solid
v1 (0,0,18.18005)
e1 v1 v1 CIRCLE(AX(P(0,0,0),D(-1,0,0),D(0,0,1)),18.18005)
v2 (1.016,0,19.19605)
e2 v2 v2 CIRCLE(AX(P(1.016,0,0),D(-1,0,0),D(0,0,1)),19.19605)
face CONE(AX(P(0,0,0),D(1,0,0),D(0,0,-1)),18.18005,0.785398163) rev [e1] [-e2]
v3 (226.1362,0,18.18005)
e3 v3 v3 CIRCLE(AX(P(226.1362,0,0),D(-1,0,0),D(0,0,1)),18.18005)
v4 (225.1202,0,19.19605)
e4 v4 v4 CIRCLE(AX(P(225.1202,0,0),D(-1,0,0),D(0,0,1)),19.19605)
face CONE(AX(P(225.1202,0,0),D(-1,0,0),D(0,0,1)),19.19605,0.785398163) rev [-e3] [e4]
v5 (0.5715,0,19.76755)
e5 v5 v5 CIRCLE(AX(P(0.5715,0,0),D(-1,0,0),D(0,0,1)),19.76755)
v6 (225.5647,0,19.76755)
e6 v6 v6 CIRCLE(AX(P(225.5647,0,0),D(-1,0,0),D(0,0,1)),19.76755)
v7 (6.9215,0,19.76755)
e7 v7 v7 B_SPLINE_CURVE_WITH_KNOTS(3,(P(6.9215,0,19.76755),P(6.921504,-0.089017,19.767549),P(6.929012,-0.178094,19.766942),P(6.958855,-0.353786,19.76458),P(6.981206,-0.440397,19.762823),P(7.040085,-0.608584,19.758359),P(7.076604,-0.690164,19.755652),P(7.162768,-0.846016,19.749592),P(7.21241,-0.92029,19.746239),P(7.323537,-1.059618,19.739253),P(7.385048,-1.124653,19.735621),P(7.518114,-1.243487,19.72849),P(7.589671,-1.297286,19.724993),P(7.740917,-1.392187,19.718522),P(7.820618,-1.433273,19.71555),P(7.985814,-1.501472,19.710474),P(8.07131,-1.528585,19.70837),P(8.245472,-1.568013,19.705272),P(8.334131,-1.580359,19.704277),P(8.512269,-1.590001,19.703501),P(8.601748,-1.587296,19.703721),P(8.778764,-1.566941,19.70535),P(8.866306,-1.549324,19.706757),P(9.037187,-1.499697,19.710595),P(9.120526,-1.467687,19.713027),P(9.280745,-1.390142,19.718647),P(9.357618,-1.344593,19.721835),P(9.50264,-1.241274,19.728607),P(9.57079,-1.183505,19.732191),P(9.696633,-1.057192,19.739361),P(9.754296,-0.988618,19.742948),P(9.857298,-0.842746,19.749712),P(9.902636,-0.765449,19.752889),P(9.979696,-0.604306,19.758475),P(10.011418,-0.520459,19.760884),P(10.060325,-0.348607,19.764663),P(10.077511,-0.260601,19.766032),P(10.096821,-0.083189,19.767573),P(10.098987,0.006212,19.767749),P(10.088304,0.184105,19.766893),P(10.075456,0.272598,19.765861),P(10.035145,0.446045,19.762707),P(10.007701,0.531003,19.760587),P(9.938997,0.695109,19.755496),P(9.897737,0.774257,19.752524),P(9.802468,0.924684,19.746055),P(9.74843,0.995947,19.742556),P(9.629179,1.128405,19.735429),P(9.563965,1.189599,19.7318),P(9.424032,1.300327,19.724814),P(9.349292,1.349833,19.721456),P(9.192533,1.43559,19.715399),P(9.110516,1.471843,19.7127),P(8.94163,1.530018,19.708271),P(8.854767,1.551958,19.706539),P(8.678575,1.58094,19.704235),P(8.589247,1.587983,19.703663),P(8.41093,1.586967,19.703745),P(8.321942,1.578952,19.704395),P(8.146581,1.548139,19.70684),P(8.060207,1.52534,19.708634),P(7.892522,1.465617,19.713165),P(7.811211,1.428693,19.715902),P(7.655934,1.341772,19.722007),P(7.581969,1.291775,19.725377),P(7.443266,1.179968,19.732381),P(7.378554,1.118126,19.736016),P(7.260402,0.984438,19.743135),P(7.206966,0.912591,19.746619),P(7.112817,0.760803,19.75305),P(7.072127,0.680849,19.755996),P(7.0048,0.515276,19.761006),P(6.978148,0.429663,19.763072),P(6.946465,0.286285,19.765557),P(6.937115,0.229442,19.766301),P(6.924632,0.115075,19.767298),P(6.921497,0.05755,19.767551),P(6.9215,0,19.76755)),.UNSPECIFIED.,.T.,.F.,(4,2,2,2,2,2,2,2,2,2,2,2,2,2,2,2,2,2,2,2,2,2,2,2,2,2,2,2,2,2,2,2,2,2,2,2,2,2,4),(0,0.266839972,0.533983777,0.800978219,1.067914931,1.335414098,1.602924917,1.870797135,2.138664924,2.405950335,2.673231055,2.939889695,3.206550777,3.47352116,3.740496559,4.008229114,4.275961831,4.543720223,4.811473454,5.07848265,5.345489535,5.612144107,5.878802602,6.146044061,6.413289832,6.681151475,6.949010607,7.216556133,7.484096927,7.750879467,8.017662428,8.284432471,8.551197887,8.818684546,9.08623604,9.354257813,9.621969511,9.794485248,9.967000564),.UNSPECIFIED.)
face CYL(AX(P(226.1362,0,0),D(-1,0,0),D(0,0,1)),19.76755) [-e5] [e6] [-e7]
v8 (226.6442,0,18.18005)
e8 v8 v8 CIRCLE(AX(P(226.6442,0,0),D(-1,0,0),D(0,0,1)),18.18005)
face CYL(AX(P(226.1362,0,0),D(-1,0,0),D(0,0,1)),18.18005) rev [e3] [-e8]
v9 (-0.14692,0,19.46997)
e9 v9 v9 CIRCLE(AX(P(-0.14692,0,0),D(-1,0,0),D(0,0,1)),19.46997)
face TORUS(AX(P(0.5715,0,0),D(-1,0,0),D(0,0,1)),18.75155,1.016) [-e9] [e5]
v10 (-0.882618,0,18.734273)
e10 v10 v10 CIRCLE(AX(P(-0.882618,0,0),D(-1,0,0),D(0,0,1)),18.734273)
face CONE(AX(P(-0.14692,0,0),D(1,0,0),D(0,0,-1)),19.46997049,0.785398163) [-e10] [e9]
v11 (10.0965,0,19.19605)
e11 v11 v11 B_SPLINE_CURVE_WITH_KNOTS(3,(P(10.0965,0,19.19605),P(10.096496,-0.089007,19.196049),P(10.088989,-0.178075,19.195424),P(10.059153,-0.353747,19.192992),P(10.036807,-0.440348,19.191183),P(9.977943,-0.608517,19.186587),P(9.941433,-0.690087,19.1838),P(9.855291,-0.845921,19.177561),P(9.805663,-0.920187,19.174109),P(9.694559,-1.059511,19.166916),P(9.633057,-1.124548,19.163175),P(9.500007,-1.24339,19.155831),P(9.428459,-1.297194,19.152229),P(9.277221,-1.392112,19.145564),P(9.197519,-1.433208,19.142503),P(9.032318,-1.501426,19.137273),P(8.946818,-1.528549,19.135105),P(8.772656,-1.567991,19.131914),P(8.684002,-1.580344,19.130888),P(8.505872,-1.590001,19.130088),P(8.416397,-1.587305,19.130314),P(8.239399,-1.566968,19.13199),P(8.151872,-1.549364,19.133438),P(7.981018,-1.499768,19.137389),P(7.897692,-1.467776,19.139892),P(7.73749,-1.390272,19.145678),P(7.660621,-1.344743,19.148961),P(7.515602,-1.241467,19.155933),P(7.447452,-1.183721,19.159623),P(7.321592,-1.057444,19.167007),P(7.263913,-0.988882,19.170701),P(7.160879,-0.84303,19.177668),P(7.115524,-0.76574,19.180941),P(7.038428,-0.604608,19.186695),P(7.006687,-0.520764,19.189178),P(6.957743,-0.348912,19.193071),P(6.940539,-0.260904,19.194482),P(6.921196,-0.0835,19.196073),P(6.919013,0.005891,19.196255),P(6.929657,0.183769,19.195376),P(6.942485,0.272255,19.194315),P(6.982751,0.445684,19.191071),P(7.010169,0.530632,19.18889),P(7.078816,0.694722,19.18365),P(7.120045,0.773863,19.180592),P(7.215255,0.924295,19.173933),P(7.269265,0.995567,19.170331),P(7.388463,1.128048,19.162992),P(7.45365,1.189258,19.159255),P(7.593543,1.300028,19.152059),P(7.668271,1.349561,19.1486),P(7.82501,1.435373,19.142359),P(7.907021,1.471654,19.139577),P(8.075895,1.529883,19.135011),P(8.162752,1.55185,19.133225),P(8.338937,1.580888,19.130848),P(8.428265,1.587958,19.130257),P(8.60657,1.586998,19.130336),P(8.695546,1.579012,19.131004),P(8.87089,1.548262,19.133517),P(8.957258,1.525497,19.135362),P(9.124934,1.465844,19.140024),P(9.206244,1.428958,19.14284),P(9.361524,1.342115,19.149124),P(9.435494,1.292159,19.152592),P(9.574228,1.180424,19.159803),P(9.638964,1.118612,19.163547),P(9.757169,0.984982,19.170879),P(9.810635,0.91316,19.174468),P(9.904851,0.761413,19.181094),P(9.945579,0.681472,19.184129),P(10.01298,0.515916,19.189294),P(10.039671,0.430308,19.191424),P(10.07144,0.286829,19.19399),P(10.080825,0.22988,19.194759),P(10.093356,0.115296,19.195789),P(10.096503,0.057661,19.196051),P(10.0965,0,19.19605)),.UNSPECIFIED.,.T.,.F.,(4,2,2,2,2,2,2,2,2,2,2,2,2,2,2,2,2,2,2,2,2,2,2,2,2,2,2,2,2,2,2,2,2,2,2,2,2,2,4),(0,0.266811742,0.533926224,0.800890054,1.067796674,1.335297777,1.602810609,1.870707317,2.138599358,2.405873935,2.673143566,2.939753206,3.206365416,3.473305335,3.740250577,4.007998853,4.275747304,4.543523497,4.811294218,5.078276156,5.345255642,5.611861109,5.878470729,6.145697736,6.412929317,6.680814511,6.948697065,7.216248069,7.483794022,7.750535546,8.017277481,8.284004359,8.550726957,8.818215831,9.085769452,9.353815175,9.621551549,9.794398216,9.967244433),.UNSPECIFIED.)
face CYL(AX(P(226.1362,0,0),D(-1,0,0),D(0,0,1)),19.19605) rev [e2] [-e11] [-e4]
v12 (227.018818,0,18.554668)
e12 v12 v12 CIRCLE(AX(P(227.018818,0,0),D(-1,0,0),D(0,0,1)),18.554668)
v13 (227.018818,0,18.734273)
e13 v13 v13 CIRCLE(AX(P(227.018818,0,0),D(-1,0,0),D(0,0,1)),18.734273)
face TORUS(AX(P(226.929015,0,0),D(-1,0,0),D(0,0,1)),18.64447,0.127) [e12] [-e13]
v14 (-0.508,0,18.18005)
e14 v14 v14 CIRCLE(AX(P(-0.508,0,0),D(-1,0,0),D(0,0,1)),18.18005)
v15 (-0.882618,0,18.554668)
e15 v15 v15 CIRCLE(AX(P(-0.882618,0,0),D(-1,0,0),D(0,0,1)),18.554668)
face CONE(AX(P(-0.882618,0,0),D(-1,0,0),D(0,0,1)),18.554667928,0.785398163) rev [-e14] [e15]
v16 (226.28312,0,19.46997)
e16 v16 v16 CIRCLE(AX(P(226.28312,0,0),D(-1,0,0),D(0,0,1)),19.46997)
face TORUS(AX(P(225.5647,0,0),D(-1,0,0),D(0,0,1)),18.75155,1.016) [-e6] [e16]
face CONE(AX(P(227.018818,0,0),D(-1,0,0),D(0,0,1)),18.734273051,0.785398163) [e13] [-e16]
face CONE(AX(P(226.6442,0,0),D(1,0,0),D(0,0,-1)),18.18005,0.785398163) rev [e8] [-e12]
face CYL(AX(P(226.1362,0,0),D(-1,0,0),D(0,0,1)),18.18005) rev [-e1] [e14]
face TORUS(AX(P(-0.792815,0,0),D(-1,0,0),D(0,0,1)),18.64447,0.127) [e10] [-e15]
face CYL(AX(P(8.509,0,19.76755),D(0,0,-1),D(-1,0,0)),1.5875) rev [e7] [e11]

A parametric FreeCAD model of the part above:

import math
import FreeCAD as App
import Part
import Sketcher

V = App.Vector
Q = App.Units.Quantity

doc = App.newDocument("Part")
params = doc.addObject("Spreadsheet::Sheet", "Params")
for row, (alias, value) in enumerate([
    ("sketch1_radius", "0.04 in"),
    ("sketch1_radius2", "0.005 in"),
    ("sketch1_width", "0.02 in"),
    ("sketch1_width2", "8.823 in"),
    ("sketch1_width3", "8.858 in"),
    ("revolution_angle", "360 deg"),
    ("sketch2_diameter", "0.125 in"),
    ("pocket1_length", "19.76755 mm"),
], start=1):
    params.set(f"A{row}", alias)
    params.set(f"B{row}", "=" + value)
    params.setAlias(f"B{row}", alias)

body = doc.addObject("PartDesign::Body", "Body")

sketch1 = body.newObject("Sketcher::SketchObject", "Sketch")
sketch1.AttachmentSupport = (doc.getObject("XY_Plane"), [""])
sketch1.MapMode = "FlatFace"
sketch1.addGeometry([
    Part.LineSegment(V(-0.88, 18.55, 0), V(-0.51, 18.18, 0)),
    Part.LineSegment(V(-0.51, 18.18, 0), V(0, 18.18, 0)),
    Part.LineSegment(V(0, 18.18, 0), V(1.02, 19.2, 0)),
    Part.LineSegment(V(1.02, 19.2, 0), V(225.12, 19.2, 0)),
    Part.LineSegment(V(225.12, 19.2, 0), V(226.14, 18.18, 0)),
    Part.LineSegment(V(226.14, 18.18, 0), V(226.64, 18.18, 0)),
    Part.LineSegment(V(226.64, 18.18, 0), V(227.02, 18.55, 0)),
    Part.ArcOfCircle(Part.Circle(V(226.93, 18.64, 0), V(0, 0, 1), 0.13), math.radians(-45), math.radians(45)),
    Part.LineSegment(V(227.02, 18.73, 0), V(226.28, 19.47, 0)),
    Part.ArcOfCircle(Part.Circle(V(225.56, 18.75, 0), V(0, 0, 1), 1.02), math.radians(45), math.radians(90)),
    Part.LineSegment(V(225.56, 19.77, 0), V(0.57, 19.77, 0)),
    Part.ArcOfCircle(Part.Circle(V(0.57, 18.75, 0), V(0, 0, 1), 1.02), math.radians(90), math.radians(135)),
    Part.LineSegment(V(-0.15, 19.47, 0), V(-0.88, 18.73, 0)),
    Part.ArcOfCircle(Part.Circle(V(-0.79, 18.64, 0), V(0, 0, 1), 0.13), math.radians(135), math.radians(225)),
], False)
sketch1.addConstraint([
    Sketcher.Constraint("Coincident", 0, 2, 1, 1),
    Sketcher.Constraint("Coincident", 1, 2, 2, 1),
    Sketcher.Constraint("Coincident", 2, 2, 3, 1),
    Sketcher.Constraint("Coincident", 3, 2, 4, 1),
    Sketcher.Constraint("Coincident", 4, 2, 5, 1),
    Sketcher.Constraint("Coincident", 5, 2, 6, 1),
    Sketcher.Constraint("Tangent", 6, 2, 7, 1),
    Sketcher.Constraint("Tangent", 7, 2, 8, 1),
    Sketcher.Constraint("Tangent", 8, 2, 9, 1),
    Sketcher.Constraint("Tangent", 9, 2, 10, 1),
    Sketcher.Constraint("Tangent", 10, 2, 11, 1),
    Sketcher.Constraint("Tangent", 11, 2, 12, 1),
    Sketcher.Constraint("Tangent", 12, 2, 13, 1),
    Sketcher.Constraint("Tangent", 13, 2, 0, 1),
    Sketcher.Constraint("Horizontal", 1),
    Sketcher.Constraint("Horizontal", 3),
    Sketcher.Constraint("Horizontal", 5),
    Sketcher.Constraint("Horizontal", 10),
    Sketcher.Constraint("Equal", 9, 11),
    Sketcher.Constraint("Equal", 7, 13),
    Sketcher.Constraint("PointOnObject", 1, 2, -2),
    Sketcher.Constraint("Perpendicular", 0, 2),
    Sketcher.Constraint("Perpendicular", 2, 4),
    Sketcher.Constraint("Perpendicular", 4, 6),
    Sketcher.Constraint("Perpendicular", 6, 8),
    Sketcher.Constraint("Perpendicular", 8, 12),
    Sketcher.Constraint("Horizontal", 7, 3, 13, 3),
    Sketcher.Constraint("Horizontal", 1, 2, 4, 2),
    Sketcher.Constraint("Horizontal", 8, 2, 11, 2),
    Sketcher.Constraint("Equal", 1, 5),
    Sketcher.Constraint("Radius", 9, Q("0.04 in")),
    Sketcher.Constraint("Radius", 7, Q("0.005 in")),
    Sketcher.Constraint("DistanceX", 1, 1, 1, 2, Q("0.02 in")),
    Sketcher.Constraint("DistanceX", 3, 1, 3, 2, Q("8.823 in")),
    Sketcher.Constraint("DistanceX", 10, 2, 10, 1, Q("8.858 in")),
    Sketcher.Constraint("DistanceX", -1, 1, 2, 2, Q("0.04 in")),
    Sketcher.Constraint("DistanceY", 4, 2, 9, 2, Q("0.0625 in")),
    Sketcher.Constraint("DistanceY", -1, 1, 7, 3, 18.64447),
])
sketch1.setExpression("Constraints[30]", "Params.sketch1_radius")
sketch1.setExpression("Constraints[31]", "Params.sketch1_radius2")
sketch1.setExpression("Constraints[32]", "Params.sketch1_width")
sketch1.setExpression("Constraints[33]", "Params.sketch1_width2")
sketch1.setExpression("Constraints[34]", "Params.sketch1_width3")
revolution = body.newObject("PartDesign::Revolution", "Revolution")
revolution.Profile = sketch1
revolution.ReferenceAxis = (sketch1, ["H_Axis"])
revolution.setExpression("Angle", "Params.revolution_angle")

sketch2 = body.newObject("Sketcher::SketchObject", "Sketch001")
sketch2.AttachmentSupport = (doc.getObject("XY_Plane"), [""])
sketch2.MapMode = "FlatFace"
sketch2.addGeometry(Part.Circle(V(8.5, 0, 0), V(0, 0, 1), 1.6), False)
sketch2.addConstraint([
    Sketcher.Constraint("PointOnObject", 0, 3, -1),
    Sketcher.Constraint("Diameter", 0, Q("0.125 in")),
    Sketcher.Constraint("DistanceX", -1, 1, 0, 3, Q("0.335 in")),
])
sketch2.setExpression("Constraints[1]", "Params.sketch2_diameter")
pocket1 = body.newObject("PartDesign::Pocket", "Pocket")
pocket1.Profile = sketch2
pocket1.setExpression("Length", "Params.pocket1_length")
pocket1.Reversed = True

doc.recompute()
